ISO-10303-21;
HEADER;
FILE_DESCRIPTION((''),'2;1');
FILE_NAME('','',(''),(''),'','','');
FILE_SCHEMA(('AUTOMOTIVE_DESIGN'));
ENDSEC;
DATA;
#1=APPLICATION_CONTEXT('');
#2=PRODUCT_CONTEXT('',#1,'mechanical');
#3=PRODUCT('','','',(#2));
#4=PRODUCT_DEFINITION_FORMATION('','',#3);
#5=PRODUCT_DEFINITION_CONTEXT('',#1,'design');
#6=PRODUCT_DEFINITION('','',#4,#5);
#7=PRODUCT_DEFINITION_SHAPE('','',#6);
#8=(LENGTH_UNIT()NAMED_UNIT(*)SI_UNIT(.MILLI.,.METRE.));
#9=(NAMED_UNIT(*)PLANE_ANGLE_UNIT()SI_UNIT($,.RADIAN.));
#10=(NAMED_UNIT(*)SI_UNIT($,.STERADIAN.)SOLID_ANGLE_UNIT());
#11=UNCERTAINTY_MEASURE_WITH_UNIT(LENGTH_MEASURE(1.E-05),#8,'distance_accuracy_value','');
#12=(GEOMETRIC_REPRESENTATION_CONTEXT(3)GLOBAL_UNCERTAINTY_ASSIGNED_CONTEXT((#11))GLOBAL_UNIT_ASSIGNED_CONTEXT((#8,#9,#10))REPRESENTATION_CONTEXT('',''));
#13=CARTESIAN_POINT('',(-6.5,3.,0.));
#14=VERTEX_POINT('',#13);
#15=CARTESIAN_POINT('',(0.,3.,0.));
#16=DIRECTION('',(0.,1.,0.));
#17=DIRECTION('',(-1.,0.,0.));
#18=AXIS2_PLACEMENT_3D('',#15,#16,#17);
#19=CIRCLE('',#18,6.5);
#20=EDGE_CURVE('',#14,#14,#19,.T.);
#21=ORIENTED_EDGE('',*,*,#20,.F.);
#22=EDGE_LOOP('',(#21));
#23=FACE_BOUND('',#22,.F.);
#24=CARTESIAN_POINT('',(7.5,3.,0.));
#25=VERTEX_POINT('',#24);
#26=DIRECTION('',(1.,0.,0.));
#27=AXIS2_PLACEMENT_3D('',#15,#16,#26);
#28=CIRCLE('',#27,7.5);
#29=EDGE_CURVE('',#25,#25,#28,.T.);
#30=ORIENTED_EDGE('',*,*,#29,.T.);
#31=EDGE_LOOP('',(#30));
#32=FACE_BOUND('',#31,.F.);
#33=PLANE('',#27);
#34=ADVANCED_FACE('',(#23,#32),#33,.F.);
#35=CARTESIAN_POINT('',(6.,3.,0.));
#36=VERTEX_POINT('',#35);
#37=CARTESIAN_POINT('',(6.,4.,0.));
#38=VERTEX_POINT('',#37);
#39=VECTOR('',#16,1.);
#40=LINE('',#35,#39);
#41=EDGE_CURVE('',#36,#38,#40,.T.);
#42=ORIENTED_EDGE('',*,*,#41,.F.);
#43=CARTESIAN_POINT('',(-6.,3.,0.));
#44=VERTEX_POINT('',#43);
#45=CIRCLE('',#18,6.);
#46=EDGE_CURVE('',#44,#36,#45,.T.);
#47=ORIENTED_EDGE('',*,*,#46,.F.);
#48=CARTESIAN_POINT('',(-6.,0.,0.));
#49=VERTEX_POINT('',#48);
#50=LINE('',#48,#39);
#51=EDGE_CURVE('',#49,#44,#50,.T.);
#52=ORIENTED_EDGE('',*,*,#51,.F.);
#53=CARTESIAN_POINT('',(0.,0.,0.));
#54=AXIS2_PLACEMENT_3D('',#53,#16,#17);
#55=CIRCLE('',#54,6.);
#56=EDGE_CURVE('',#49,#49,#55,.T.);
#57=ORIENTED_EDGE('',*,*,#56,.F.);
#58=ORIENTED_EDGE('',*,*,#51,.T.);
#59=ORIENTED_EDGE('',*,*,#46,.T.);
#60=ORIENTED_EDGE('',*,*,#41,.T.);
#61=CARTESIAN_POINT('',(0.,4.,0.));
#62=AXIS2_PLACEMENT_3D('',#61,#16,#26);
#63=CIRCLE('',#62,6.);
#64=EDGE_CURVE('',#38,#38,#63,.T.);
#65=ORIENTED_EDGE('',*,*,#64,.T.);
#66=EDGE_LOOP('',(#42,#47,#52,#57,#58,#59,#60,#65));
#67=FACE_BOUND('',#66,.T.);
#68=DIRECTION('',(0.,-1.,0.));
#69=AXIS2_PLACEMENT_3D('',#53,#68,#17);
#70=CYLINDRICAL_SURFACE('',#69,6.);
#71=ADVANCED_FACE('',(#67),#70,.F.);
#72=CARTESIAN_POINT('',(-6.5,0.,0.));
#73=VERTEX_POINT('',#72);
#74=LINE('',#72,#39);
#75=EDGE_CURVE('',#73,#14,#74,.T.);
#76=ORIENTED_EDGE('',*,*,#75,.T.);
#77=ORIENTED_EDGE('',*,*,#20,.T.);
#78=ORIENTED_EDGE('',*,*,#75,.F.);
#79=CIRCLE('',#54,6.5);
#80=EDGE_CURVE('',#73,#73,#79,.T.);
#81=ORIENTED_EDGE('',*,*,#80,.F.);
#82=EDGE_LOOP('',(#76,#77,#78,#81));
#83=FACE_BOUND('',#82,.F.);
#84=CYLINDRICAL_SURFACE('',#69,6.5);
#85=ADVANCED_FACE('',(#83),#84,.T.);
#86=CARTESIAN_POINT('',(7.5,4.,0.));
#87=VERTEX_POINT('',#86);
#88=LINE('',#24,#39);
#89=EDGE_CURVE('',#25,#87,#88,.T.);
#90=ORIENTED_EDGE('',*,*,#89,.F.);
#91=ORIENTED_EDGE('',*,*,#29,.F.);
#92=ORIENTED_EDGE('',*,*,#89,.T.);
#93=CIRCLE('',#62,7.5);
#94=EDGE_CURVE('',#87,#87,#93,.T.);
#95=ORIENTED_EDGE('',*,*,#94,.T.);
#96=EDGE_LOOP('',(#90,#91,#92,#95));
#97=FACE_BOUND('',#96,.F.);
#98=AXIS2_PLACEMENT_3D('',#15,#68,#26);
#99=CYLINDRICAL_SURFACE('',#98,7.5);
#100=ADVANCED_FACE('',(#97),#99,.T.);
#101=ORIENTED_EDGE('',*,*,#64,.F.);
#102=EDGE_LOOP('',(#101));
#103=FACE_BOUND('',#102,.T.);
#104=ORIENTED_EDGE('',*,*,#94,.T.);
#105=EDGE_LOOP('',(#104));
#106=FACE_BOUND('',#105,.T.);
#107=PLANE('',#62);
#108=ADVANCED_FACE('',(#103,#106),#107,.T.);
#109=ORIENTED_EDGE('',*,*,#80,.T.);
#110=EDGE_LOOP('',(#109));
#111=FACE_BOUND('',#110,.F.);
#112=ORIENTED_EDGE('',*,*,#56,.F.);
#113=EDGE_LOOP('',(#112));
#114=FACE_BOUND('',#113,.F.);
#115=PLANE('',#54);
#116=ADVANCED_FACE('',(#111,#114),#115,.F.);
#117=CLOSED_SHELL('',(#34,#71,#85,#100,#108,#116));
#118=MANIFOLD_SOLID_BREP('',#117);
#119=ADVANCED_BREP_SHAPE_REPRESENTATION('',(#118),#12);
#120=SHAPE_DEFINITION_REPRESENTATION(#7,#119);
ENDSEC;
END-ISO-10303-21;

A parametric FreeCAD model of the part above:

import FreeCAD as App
import Part
import Sketcher
Q = App.Units.Quantity

doc = App.newDocument("Part")
body = doc.addObject("PartDesign::Body", "Body")

sketch1 = body.newObject("Sketcher::SketchObject", "Sketch")
sketch1.AttachmentSupport = (doc.getObject("XZ_Plane"), [""])
sketch1.MapMode = "FlatFace"
sketch1.addGeometry(Part.Circle(App.Vector(0, 0, 0), App.Vector(0, 0, 1), 6), False)
sketch1.addGeometry(Part.Circle(App.Vector(0, 0, 0), App.Vector(0, 0, 1), 6), False)
sketch1.addConstraint(Sketcher.Constraint("Coincident", 0, 3, -1, 1))
sketch1.addConstraint(Sketcher.Constraint("Coincident", 1, 3, -1, 1))
sketch1.addConstraint(Sketcher.Constraint("Diameter", 0, Q("13 mm")))
sketch1.addConstraint(Sketcher.Constraint("Diameter", 1, Q("12 mm")))
pad1 = body.newObject("PartDesign::Pad", "Pad")
pad1.Profile = sketch1
pad1.Length = 3
pad1.Reversed = True

sketch2 = body.newObject("Sketcher::SketchObject", "Sketch001")
sketch2.AttachmentSupport = (doc.getObject("XZ_Plane"), [""])
sketch2.MapMode = "FlatFace"
sketch2.AttachmentOffset = App.Placement(App.Vector(0, 0, -3), App.Rotation())
sketch2.addGeometry(Part.Circle(App.Vector(0, 0, 0), App.Vector(0, 0, 1), 8), False)
sketch2.addGeometry(Part.Circle(App.Vector(0, 0, 0), App.Vector(0, 0, 1), 6), False)
sketch2.addConstraint(Sketcher.Constraint("Coincident", 0, 3, -1, 1))
sketch2.addConstraint(Sketcher.Constraint("Coincident", 1, 3, -1, 1))
sketch2.addConstraint(Sketcher.Constraint("Diameter", 0, Q("15 mm")))
sketch2.addConstraint(Sketcher.Constraint("Diameter", 1, Q("12 mm")))
pad2 = body.newObject("PartDesign::Pad", "Pad001")
pad2.Profile = sketch2
pad2.Length = 1
pad2.Reversed = True

doc.recompute()
